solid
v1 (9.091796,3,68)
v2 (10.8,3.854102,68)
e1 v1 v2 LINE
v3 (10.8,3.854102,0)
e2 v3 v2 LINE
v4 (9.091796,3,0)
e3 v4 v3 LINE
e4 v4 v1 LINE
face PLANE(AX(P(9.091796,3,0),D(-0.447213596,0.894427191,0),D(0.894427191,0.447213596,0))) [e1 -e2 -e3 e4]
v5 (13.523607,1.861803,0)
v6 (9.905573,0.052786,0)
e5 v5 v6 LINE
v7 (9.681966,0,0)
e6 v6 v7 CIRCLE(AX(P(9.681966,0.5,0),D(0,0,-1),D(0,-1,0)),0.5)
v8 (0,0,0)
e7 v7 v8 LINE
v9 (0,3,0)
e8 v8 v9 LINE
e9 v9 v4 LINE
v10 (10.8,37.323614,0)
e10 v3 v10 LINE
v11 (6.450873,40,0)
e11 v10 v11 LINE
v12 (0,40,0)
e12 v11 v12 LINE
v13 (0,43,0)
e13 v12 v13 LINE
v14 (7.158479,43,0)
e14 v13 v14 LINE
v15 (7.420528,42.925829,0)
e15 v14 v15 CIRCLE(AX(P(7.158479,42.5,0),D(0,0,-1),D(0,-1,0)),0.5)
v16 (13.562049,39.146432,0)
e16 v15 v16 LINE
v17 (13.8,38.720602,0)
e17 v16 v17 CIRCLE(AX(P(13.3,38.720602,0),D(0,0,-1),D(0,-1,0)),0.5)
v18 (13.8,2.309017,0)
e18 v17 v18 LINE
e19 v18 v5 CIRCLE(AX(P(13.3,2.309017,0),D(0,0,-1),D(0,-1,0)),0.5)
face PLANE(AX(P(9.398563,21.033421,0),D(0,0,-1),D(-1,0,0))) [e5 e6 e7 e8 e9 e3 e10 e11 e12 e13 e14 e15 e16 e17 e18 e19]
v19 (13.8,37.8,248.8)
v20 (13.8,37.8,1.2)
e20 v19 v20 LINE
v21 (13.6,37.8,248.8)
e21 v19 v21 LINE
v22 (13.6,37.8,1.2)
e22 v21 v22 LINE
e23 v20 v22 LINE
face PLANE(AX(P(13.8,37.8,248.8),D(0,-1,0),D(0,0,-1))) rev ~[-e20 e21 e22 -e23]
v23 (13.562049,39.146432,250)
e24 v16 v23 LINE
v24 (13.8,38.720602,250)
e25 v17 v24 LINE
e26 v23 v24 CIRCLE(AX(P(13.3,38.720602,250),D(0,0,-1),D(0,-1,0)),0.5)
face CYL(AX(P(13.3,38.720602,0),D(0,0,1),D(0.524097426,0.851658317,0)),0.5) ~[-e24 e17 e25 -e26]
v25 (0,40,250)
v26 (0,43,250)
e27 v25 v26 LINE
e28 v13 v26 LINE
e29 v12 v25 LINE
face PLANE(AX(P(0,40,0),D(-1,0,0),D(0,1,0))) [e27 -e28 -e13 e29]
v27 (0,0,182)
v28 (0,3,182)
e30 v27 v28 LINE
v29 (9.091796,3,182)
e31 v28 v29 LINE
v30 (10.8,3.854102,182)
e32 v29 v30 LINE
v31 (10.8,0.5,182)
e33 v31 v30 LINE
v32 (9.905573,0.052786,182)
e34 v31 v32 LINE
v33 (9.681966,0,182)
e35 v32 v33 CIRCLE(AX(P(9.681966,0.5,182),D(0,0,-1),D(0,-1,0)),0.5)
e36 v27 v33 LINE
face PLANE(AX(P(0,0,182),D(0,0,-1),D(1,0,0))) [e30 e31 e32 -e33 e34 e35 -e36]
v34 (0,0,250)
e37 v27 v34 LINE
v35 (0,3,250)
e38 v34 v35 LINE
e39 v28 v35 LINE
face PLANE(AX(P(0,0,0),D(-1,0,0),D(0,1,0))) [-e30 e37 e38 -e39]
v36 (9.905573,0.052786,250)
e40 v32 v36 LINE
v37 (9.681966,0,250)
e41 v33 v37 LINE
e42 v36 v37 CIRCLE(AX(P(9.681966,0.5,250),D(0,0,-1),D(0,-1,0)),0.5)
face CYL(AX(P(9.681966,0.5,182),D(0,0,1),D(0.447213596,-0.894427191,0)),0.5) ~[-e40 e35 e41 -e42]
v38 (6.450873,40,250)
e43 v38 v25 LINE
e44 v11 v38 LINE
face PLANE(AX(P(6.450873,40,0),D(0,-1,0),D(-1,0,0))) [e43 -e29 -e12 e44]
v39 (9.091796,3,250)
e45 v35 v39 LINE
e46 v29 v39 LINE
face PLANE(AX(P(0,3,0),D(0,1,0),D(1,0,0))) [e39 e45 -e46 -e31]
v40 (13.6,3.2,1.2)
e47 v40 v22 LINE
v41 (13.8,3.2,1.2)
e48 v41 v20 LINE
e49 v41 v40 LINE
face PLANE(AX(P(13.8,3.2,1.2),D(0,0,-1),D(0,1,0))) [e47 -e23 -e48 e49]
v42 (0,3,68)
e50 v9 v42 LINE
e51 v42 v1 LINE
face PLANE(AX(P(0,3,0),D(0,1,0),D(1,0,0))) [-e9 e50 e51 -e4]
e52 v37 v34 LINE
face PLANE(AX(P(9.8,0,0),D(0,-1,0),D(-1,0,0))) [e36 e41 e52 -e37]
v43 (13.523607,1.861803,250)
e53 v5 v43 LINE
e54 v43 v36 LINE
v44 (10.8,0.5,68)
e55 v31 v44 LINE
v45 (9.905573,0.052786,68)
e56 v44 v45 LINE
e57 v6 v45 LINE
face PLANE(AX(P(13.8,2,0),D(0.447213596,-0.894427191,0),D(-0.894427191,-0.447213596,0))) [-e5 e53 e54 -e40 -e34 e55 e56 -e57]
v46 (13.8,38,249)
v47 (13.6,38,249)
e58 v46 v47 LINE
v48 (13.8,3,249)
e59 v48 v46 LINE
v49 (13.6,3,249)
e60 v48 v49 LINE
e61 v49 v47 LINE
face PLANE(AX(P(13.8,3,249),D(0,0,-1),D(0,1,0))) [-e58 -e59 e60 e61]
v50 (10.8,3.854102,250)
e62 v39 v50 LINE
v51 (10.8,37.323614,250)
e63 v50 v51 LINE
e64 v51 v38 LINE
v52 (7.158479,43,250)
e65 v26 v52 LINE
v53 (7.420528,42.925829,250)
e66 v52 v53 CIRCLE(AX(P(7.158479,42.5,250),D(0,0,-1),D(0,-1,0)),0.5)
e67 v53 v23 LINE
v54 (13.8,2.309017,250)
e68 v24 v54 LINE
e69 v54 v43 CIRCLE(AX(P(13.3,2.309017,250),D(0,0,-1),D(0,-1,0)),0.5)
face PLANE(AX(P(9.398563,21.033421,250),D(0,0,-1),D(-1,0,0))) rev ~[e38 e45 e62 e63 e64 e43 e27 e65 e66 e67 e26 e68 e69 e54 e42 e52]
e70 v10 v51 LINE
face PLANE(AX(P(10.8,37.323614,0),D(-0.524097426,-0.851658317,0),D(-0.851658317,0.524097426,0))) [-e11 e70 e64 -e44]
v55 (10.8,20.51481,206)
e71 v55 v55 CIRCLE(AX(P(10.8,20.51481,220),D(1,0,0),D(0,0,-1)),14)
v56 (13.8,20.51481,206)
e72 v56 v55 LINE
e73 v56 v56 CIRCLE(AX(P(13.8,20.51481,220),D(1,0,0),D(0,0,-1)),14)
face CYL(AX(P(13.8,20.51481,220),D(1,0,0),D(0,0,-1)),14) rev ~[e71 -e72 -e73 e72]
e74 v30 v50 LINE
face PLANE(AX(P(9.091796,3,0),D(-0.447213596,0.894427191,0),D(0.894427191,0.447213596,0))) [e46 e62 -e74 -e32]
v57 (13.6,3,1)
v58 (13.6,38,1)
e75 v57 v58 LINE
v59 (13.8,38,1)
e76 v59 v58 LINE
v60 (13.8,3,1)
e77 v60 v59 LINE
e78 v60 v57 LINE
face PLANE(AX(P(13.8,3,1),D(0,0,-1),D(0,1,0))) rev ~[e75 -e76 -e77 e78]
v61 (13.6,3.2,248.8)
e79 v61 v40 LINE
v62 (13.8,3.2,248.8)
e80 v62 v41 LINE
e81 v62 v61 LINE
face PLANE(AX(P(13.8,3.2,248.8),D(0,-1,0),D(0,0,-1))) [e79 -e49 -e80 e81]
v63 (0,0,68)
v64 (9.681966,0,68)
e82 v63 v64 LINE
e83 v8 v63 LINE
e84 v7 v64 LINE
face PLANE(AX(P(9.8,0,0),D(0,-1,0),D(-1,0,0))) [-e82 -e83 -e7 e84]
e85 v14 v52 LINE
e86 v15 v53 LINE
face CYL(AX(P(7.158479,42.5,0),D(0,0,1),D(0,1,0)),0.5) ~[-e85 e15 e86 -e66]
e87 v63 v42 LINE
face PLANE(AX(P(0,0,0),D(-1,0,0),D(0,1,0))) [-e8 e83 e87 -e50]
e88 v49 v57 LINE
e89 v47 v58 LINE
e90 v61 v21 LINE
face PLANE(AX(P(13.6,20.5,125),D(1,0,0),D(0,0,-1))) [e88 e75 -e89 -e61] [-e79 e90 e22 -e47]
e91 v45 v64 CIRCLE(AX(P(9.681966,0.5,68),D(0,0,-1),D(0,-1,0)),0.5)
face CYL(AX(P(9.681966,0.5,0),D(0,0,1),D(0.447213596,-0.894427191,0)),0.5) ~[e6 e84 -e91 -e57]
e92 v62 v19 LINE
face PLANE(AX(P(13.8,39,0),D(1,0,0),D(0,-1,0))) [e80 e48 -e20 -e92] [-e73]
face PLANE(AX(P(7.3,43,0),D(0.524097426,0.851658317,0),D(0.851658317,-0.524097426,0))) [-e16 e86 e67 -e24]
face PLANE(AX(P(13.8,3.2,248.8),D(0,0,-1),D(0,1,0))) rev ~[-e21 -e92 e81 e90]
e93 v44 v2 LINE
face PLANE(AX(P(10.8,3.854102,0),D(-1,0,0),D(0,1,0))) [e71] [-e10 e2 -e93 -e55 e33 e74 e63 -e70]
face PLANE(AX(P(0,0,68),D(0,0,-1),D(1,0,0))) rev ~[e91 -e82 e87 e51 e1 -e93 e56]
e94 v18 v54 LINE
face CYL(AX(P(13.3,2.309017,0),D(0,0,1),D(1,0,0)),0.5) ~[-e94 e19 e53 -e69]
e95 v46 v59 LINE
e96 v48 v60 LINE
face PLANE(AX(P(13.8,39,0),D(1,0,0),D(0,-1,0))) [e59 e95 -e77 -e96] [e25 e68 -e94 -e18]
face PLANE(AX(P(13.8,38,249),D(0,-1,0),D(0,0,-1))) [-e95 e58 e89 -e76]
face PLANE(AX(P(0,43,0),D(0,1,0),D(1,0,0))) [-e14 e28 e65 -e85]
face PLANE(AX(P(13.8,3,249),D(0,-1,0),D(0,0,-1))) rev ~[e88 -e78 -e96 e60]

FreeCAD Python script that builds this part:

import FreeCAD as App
import Part
import Sketcher


def edges_at(feature, points):
    """Names of the edges that pass closest to the given points."""
    edges = feature.Shape.Edges
    near = lambda p: min(range(len(edges)), key=lambda i: edges[i].distToShape(Part.Vertex(*p))[0])
    return sorted({f"Edge{near(p) + 1}" for p in points})


def add_polygon(sketch, points):
    """Adds a closed chain of lines whose ends are joined by coincident constraints."""
    first, n = sketch.GeometryCount, len(points)
    for a, b in zip(points, points[1:] + points[:1]):
        sketch.addGeometry(Part.LineSegment(App.Vector(*a, 0), App.Vector(*b, 0)), False)
    for i in range(n):
        sketch.addConstraint(Sketcher.Constraint("Coincident", first + i, 2, first + (i + 1) % n, 1))

doc = App.newDocument("Part")
body = doc.addObject("PartDesign::Body", "Body")

# Sketch on XY plane
sketch1 = body.newObject("Sketcher::SketchObject", "Sketch")
sketch1.AttachmentSupport = (doc.getObject("XY_Plane"), [""])
sketch1.MapMode = "FlatFace"
add_polygon(sketch1, [(9.091796, 3), (0, 3), (0, 0), (9.8, 0), (13.8, 2), (13.8, 39), (7.3, 43), (0, 43), (0, 40), (6.450873, 40), (10.8, 37.323614), (10.8, 3.854102)])  # lines 0-11
sketch1.addConstraint([
    Sketcher.Constraint("Horizontal", 0),
    Sketcher.Constraint("Vertical", 1),
    Sketcher.Constraint("Horizontal", 2),
    Sketcher.Constraint("Vertical", 4),
    Sketcher.Constraint("Horizontal", 6),
    Sketcher.Constraint("Vertical", 7),
    Sketcher.Constraint("Horizontal", 8),
    Sketcher.Constraint("Vertical", 10),
    Sketcher.Constraint("Coincident", 1, 2, -1, 1),
    Sketcher.Constraint("PointOnObject", 6, 2, -2),
    Sketcher.Constraint("Parallel", 5, 9),
    Sketcher.Constraint("Parallel", 3, 11),
    Sketcher.Constraint("Equal", 1, 7),
    Sketcher.Constraint("DistanceY", 1, 2, 1, 1, 3.0),
    Sketcher.Constraint("DistanceY", 4, 1, 4, 2, 37.0),
    Sketcher.Constraint("DistanceX", 2, 1, 2, 2, 9.8),
    Sketcher.Constraint("DistanceX", 6, 2, 6, 1, 7.3),
    Sketcher.Constraint("DistanceY", -1, 1, 3, 2, 2.0),
    Sketcher.Constraint("DistanceY", -1, 1, 5, 2, 43.0),
    Sketcher.Constraint("DistanceX", 2, 2, 3, 2, 4.0),
    Sketcher.Constraint("DistanceX", 9, 2, 4, 2, 3.0),
    Sketcher.Constraint("DistanceY", -1, 1, 10, 2, 3.854102),
    Sketcher.Constraint("DistanceX", 8, 1, 8, 2, 6.450873),
])
pad1 = body.newObject("PartDesign::Pad", "Pad")
pad1.Profile = sketch1
pad1.Length = 250

# Sketch on XZ plane
sketch2 = body.newObject("Sketcher::SketchObject", "Sketch001")
sketch2.AttachmentSupport = (doc.getObject("XZ_Plane"), [""])
sketch2.MapMode = "FlatFace"
add_polygon(sketch2, [(0, 182), (0, 68), (10.8, 68), (10.8, 182)])  # lines 0-3
sketch2.addConstraint([
    Sketcher.Constraint("Vertical", 0),
    Sketcher.Constraint("Horizontal", 1),
    Sketcher.Constraint("Vertical", 2),
    Sketcher.Constraint("Horizontal", 3),
    Sketcher.Constraint("PointOnObject", 0, 2, -2),
    Sketcher.Constraint("DistanceY", 0, 2, 0, 1, 114.0),
    Sketcher.Constraint("DistanceX", 1, 1, 1, 2, 10.8),
    Sketcher.Constraint("DistanceY", -1, 1, 0, 2, 68.0),
])
pocket1 = body.newObject("PartDesign::Pocket", "Pocket")
pocket1.Profile = sketch2
pocket1.Length = 3.854102

# Sketch on YZ plane
sketch3 = body.newObject("Sketcher::SketchObject", "Sketch002")
sketch3.AttachmentSupport = (doc.getObject("YZ_Plane"), [""])
sketch3.MapMode = "FlatFace"
sketch3.AttachmentOffset = App.Placement(App.Vector(0, 0, 13.8), App.Rotation())
add_polygon(sketch3, [(38, 249), (3, 249), (3, 1), (38, 1)])  # lines 0-3
add_polygon(sketch3, [(3.2, 1.2), (3.2, 248.8), (37.8, 248.8), (37.8, 1.2)])  # lines 4-7
sketch3.addConstraint([
    Sketcher.Constraint("Horizontal", 0),
    Sketcher.Constraint("Vertical", 1),
    Sketcher.Constraint("Horizontal", 2),
    Sketcher.Constraint("Vertical", 3),
    Sketcher.Constraint("Vertical", 4),
    Sketcher.Constraint("Horizontal", 5),
    Sketcher.Constraint("Vertical", 6),
    Sketcher.Constraint("Horizontal", 7),
    Sketcher.Constraint("DistanceX", 0, 2, 0, 1, 35.0),
    Sketcher.Constraint("DistanceY", 1, 2, 1, 1, 248.0),
    Sketcher.Constraint("DistanceX", 5, 1, 5, 2, 34.6),
    Sketcher.Constraint("DistanceY", 4, 1, 4, 2, 247.6),
    Sketcher.Constraint("DistanceX", -1, 1, 0, 2, 3.0),
    Sketcher.Constraint("DistanceY", -1, 1, 0, 2, 249.0),
    Sketcher.Constraint("DistanceX", -1, 1, 4, 2, 3.2),
    Sketcher.Constraint("DistanceY", -1, 1, 4, 2, 248.8),
])
pocket2 = body.newObject("PartDesign::Pocket", "Pocket001")
pocket2.Profile = sketch3
pocket2.Length = 0.2
doc.recompute()

fillet = body.newObject("PartDesign::Fillet", "Fillet")
fillet.Base = (pocket2, edges_at(pocket2, [
    (13.8, 39, 125),
    (13.8, 2, 125),
    (9.8, 0, 216),
    (7.3, 43, 125),
    (9.8, 0, 34),
]))
fillet.Radius = 0.5

# Sketch on YZ plane
sketch4 = body.newObject("Sketcher::SketchObject", "Sketch003")
sketch4.AttachmentSupport = (doc.getObject("YZ_Plane"), [""])
sketch4.MapMode = "FlatFace"
sketch4.AttachmentOffset = App.Placement(App.Vector(0, 0, 13.8), App.Rotation())
sketch4.addGeometry(Part.Circle(App.Vector(20.51481, 220, 0), App.Vector(0, 0, 1), 14), False)
sketch4.addConstraint([
    Sketcher.Constraint("Diameter", 0, 28.0),
    Sketcher.Constraint("DistanceY", -1, 1, 0, 3, 220.0),
    Sketcher.Constraint("DistanceX", -1, 1, 0, 3, 20.51481),
])
pocket3 = body.newObject("PartDesign::Pocket", "Pocket002")
pocket3.Profile = sketch4
pocket3.Type = "ThroughAll"

doc.recompute()
